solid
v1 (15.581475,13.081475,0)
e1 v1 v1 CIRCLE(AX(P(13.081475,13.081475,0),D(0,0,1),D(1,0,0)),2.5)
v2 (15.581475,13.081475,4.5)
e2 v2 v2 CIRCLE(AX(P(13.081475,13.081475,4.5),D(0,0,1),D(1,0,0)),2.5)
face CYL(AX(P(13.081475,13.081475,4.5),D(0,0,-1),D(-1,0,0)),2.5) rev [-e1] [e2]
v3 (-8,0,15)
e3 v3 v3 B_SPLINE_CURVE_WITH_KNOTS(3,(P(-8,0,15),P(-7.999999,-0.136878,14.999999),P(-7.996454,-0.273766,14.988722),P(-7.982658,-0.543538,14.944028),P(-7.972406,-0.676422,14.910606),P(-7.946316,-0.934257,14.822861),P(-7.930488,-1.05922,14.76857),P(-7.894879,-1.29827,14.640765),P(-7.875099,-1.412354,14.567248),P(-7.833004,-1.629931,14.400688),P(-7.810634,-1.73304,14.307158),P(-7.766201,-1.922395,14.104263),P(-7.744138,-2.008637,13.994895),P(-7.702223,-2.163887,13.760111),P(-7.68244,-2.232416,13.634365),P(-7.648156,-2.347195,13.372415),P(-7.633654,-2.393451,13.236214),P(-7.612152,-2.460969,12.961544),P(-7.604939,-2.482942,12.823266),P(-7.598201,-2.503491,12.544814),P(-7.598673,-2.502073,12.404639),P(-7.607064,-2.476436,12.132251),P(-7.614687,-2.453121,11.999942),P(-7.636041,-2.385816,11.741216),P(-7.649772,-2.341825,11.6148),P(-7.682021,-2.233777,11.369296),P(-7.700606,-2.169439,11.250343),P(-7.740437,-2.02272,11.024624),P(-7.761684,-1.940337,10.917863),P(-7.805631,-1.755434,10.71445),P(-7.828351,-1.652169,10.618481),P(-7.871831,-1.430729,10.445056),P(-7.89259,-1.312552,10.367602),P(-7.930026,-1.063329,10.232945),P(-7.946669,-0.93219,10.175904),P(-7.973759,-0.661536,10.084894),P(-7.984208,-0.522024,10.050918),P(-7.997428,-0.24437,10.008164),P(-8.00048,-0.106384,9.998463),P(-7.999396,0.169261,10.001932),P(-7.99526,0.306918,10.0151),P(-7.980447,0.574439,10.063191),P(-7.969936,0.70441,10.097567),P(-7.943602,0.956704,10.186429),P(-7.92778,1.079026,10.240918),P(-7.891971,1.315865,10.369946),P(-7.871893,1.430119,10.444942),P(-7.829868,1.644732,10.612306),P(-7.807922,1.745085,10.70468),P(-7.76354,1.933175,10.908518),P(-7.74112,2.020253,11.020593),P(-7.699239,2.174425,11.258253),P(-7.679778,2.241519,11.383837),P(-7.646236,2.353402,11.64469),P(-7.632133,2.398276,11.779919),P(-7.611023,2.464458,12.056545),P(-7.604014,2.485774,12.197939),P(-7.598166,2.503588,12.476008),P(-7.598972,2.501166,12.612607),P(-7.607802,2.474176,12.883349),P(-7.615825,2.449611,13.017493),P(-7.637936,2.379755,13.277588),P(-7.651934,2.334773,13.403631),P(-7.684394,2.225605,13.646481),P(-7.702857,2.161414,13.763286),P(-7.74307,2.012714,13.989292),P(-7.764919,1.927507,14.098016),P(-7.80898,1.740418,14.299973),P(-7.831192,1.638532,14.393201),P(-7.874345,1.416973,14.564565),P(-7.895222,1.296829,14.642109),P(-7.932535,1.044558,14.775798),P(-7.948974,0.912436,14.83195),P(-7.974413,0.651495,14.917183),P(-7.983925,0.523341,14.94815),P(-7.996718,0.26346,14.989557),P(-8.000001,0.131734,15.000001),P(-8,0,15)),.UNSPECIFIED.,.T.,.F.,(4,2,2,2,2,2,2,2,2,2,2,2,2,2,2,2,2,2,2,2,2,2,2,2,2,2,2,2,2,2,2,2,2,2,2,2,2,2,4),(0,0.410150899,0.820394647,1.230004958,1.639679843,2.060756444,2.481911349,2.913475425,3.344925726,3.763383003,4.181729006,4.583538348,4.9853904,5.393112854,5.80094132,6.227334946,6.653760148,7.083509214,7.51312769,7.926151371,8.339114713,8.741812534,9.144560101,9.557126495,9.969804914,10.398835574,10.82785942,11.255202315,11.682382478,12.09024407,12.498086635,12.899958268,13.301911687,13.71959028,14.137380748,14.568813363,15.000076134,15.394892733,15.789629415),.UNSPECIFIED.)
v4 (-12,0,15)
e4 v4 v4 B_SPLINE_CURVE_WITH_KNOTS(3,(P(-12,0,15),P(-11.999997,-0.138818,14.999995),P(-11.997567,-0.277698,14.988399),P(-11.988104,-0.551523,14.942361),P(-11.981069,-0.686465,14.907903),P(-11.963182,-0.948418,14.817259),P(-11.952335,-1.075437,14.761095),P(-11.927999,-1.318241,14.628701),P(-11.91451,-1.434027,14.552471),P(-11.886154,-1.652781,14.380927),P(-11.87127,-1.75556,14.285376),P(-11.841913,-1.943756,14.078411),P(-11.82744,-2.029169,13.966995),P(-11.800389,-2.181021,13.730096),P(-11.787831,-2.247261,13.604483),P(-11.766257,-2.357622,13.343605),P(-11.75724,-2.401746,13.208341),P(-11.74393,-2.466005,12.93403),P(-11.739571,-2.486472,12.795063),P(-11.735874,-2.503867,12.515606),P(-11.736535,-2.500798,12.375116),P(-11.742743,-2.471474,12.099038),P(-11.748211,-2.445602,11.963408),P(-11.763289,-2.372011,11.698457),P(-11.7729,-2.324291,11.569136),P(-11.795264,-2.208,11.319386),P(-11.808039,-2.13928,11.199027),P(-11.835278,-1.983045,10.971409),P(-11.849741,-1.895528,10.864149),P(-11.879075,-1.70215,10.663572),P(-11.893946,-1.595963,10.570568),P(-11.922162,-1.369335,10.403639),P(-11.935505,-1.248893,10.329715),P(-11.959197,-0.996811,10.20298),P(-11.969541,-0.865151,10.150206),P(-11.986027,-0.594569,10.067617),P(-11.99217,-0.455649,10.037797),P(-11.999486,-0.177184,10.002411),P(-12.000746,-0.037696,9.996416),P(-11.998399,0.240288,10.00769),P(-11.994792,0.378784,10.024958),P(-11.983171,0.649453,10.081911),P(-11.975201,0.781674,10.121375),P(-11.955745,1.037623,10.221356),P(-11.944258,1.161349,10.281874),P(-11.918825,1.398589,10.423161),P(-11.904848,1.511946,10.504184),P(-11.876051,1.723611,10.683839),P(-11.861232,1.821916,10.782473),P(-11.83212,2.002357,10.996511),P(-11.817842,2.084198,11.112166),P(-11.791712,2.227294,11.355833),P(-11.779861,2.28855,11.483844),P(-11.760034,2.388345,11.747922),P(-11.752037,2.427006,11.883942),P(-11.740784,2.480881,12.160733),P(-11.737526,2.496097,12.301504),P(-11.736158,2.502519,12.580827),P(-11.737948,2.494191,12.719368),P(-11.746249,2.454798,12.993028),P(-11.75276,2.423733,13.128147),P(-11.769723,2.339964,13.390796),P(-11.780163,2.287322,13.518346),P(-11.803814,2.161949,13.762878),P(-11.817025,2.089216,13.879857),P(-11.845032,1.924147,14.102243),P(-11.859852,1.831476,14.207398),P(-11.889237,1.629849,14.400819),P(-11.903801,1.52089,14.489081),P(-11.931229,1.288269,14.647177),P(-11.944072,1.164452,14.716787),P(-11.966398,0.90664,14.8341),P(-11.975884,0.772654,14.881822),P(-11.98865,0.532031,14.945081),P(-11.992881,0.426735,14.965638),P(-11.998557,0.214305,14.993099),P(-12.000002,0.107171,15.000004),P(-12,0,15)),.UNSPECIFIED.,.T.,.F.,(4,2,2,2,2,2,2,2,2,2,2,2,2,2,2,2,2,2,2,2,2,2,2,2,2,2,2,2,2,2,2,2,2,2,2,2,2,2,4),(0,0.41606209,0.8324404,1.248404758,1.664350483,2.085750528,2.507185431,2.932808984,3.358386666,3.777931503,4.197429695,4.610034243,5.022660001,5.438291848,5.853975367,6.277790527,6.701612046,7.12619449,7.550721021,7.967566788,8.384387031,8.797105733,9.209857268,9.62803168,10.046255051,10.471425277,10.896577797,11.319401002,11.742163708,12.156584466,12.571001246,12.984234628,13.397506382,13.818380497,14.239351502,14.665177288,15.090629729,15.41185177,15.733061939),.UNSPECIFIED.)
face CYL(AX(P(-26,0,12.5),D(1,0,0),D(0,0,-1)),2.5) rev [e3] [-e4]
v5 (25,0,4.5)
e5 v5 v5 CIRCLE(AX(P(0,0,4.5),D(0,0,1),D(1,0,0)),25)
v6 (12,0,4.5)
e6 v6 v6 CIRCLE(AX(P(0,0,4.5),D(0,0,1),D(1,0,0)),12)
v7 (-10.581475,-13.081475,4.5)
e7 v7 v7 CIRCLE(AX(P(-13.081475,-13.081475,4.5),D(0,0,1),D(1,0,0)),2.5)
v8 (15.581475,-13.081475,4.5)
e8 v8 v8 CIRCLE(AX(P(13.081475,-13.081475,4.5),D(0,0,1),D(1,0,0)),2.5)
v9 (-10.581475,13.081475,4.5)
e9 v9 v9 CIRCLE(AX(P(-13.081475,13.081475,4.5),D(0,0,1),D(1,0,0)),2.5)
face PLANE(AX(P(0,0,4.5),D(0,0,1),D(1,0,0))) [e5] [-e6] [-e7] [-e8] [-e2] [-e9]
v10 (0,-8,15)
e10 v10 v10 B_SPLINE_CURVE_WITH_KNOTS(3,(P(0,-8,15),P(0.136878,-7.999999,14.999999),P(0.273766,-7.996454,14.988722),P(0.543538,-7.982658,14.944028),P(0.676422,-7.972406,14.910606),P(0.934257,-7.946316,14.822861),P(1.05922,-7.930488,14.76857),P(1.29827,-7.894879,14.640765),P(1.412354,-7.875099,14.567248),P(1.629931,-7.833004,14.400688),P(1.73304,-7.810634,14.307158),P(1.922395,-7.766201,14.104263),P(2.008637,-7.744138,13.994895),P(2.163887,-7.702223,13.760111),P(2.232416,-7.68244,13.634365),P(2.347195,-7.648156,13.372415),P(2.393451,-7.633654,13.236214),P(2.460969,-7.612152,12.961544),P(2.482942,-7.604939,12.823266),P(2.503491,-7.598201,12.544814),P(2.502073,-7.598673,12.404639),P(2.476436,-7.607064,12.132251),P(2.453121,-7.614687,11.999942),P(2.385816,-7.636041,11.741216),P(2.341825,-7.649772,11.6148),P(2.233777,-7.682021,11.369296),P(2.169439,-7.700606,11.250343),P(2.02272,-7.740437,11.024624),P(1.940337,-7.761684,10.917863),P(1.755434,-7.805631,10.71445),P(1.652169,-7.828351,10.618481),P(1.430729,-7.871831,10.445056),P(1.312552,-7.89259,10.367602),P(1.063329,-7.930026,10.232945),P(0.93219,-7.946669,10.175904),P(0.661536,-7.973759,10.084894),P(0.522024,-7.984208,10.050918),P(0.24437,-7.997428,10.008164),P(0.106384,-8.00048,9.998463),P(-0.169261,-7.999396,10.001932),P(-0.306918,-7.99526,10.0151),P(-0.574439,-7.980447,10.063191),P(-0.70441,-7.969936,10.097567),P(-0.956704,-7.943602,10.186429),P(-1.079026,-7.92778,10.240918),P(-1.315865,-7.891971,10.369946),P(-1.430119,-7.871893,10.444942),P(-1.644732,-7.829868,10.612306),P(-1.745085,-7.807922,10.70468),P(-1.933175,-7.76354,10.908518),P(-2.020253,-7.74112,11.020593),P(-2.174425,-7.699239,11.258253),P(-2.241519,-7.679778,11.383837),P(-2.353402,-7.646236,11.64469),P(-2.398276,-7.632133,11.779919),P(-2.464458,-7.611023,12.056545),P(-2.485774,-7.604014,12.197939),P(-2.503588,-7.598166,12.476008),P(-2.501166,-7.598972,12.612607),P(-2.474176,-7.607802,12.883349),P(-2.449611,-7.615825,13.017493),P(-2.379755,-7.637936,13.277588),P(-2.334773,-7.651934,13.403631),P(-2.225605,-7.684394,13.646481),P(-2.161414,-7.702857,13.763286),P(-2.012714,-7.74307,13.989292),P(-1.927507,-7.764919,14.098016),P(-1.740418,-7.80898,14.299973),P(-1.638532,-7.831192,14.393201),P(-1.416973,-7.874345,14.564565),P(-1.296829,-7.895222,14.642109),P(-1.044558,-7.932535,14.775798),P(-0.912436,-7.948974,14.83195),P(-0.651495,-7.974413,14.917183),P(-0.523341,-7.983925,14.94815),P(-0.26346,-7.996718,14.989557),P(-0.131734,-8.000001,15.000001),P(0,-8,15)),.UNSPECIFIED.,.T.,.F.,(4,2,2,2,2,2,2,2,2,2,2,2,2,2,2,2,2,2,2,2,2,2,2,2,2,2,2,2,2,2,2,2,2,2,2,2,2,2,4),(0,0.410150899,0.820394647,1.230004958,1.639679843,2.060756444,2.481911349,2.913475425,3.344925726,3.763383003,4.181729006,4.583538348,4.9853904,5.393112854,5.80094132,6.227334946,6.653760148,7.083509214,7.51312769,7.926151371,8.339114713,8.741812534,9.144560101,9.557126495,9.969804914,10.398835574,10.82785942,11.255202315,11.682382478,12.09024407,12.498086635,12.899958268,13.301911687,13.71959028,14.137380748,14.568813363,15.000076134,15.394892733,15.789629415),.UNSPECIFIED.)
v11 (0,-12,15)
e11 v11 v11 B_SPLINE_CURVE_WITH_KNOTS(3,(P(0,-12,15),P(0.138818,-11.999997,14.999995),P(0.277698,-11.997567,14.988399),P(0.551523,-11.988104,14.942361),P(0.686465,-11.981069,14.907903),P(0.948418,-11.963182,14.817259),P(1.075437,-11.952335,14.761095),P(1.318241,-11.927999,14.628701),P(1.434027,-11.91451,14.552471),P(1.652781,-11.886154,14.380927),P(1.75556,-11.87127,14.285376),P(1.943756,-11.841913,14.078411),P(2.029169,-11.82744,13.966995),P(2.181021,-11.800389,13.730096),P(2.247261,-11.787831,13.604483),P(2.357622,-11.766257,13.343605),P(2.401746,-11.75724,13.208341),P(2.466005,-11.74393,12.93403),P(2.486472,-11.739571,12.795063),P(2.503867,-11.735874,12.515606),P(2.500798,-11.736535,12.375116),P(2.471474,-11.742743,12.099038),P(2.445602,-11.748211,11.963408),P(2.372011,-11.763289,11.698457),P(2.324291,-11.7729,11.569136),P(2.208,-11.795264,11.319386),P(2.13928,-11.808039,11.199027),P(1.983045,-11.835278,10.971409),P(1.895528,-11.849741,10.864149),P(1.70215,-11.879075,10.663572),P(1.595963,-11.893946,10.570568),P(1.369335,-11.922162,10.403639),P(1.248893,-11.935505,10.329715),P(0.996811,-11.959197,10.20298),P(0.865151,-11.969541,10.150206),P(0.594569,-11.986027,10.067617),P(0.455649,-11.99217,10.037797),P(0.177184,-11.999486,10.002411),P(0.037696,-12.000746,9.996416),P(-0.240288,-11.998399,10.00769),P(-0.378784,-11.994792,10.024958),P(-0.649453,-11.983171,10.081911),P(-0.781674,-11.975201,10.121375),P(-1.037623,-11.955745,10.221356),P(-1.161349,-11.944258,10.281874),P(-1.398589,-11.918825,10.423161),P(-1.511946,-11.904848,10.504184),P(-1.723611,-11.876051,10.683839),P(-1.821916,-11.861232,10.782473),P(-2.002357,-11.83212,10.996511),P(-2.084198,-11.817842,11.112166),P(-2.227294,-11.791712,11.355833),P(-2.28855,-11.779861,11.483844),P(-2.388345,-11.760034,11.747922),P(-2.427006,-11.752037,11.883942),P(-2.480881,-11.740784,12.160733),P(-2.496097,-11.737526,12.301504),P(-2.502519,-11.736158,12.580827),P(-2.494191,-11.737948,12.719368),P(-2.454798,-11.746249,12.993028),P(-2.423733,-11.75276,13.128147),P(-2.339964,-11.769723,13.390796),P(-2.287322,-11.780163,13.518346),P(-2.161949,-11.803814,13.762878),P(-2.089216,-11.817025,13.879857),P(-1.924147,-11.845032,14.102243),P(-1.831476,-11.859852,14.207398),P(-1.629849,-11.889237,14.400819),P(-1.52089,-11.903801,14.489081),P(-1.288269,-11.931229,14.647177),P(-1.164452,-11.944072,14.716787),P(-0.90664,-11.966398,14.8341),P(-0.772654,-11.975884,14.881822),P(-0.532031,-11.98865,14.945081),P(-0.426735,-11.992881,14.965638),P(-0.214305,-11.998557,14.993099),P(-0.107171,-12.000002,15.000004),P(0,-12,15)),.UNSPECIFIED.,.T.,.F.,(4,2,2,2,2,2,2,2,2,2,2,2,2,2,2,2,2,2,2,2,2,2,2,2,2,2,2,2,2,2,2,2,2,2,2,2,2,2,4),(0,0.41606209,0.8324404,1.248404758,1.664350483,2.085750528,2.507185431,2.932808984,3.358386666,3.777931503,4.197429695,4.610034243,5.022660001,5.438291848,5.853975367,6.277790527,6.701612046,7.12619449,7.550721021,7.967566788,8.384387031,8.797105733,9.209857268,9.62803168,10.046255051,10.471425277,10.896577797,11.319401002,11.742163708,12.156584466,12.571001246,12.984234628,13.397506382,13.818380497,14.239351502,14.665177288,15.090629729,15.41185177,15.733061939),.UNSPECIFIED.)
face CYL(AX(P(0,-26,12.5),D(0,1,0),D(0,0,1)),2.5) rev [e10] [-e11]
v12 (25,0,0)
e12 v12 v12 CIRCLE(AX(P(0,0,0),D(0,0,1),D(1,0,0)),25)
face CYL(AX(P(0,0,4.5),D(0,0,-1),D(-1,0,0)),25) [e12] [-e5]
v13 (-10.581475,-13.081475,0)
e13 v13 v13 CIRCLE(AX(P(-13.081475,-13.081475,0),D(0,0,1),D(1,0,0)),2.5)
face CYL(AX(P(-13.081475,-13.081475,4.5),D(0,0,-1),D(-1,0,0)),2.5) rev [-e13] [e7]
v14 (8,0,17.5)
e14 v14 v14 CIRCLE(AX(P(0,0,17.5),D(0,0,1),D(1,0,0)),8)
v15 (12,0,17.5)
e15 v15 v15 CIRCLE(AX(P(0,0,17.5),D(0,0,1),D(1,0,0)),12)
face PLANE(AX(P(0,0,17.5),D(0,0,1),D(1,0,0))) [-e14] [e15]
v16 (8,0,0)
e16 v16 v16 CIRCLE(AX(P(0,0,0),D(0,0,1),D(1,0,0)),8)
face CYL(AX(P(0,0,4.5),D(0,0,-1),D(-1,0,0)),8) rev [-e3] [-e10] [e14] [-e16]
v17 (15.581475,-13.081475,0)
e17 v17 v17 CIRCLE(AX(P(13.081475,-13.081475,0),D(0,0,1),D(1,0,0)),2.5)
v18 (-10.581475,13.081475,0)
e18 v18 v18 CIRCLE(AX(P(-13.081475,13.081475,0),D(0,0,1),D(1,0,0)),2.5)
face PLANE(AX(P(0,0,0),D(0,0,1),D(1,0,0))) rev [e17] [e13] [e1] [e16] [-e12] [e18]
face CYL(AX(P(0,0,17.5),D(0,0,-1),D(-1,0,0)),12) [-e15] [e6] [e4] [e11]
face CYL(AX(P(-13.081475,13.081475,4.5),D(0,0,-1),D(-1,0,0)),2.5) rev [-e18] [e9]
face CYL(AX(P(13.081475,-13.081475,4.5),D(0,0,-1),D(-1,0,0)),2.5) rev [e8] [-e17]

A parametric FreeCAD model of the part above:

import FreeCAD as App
import Part
import Sketcher

V = App.Vector

doc = App.newDocument("Part")
body = doc.addObject("PartDesign::Body", "Body")

# Sketch on XY plane
sketch1 = doc.addObject("Sketcher::SketchObject", "Sketch")
body.addObject(sketch1)
sketch1.AttachmentSupport = (doc.XY_Plane, [""])
sketch1.MapMode = "FlatFace"
sketch1.addGeometry(Part.Circle(V(0, 0, 0), V(0, 0, 1), 25), False)
sketch1.addGeometry(Part.Circle(V(-13.081475, -13.081475, 0), V(0, 0, 1), 2.5), False)
sketch1.addGeometry(Part.Circle(V(13.081475, -13.081475, 0), V(0, 0, 1), 2.5), False)
sketch1.addGeometry(Part.Circle(V(-13.081475, 13.081475, 0), V(0, 0, 1), 2.5), False)
sketch1.addGeometry(Part.Circle(V(0, 0, 0), V(0, 0, 1), 8), False)
sketch1.addGeometry(Part.Circle(V(13.081475, 13.081475, 0), V(0, 0, 1), 2.5), False)
sketch1.addConstraint(Sketcher.Constraint("Coincident", 0, 3, -1, 1))
sketch1.addConstraint(Sketcher.Constraint("Coincident", 4, 3, -1, 1))
sketch1.addConstraint(Sketcher.Constraint("Equal", 1, 2))
sketch1.addConstraint(Sketcher.Constraint("Equal", 2, 3))
sketch1.addConstraint(Sketcher.Constraint("Equal", 3, 5))
sketch1.addConstraint(Sketcher.Constraint("Symmetric", 2, 3, 3, 3, -1, 1))
sketch1.addConstraint(Sketcher.Constraint("Symmetric", 1, 3, 5, 3, -1, 1))
sketch1.addConstraint(Sketcher.Constraint("Symmetric", 1, 3, 2, 3, -2))
sketch1.addConstraint(Sketcher.Constraint("Diameter", 0, 50.0))
sketch1.addConstraint(Sketcher.Constraint("Diameter", 1, 5.0))
sketch1.addConstraint(Sketcher.Constraint("Diameter", 4, 16.0))
sketch1.addConstraint(Sketcher.Constraint("DistanceX", 1, 3, 2, 3, 26.162951))
sketch1.addConstraint(Sketcher.Constraint("DistanceY", 1, 3, 3, 3, 26.162951))
pad1 = doc.addObject("PartDesign::Pad", "Pad")
body.addObject(pad1)
pad1.Profile = sketch1
pad1.Length = 4.5

# Sketch on XY plane
sketch2 = doc.addObject("Sketcher::SketchObject", "Sketch001")
body.addObject(sketch2)
sketch2.AttachmentSupport = (doc.XY_Plane, [""])
sketch2.MapMode = "FlatFace"
sketch2.AttachmentOffset = App.Placement(V(0, 0, 4.5), App.Rotation())
sketch2.addGeometry(Part.Circle(V(0, 0, 0), V(0, 0, 1), 12), False)
sketch2.addGeometry(Part.Circle(V(0, 0, 0), V(0, 0, 1), 8), False)
sketch2.addConstraint(Sketcher.Constraint("Coincident", 0, 3, -1, 1))
sketch2.addConstraint(Sketcher.Constraint("Coincident", 1, 3, -1, 1))
sketch2.addConstraint(Sketcher.Constraint("Diameter", 0, 24.0))
sketch2.addConstraint(Sketcher.Constraint("Diameter", 1, 16.0))
pad2 = doc.addObject("PartDesign::Pad", "Pad001")
body.addObject(pad2)
pad2.Profile = sketch2
pad2.Length = 13

# Sketch on XZ plane
sketch3 = doc.addObject("Sketcher::SketchObject", "Sketch002")
body.addObject(sketch3)
sketch3.AttachmentSupport = (doc.XZ_Plane, [""])
sketch3.MapMode = "FlatFace"
sketch3.addGeometry(Part.Circle(V(0, 12.5, 0), V(0, 0, 1), 2.5), False)
sketch3.addConstraint(Sketcher.Constraint("PointOnObject", 0, 3, -2))
sketch3.addConstraint(Sketcher.Constraint("Diameter", 0, 5.0))
sketch3.addConstraint(Sketcher.Constraint("DistanceY", -1, 1, 0, 3, 12.5))
pocket1 = doc.addObject("PartDesign::Pocket", "Pocket")
body.addObject(pocket1)
pocket1.Profile = sketch3
pocket1.Length = 26
pocket1.Reversed = True

# Sketch on YZ plane
sketch4 = doc.addObject("Sketcher::SketchObject", "Sketch003")
body.addObject(sketch4)
sketch4.AttachmentSupport = (doc.YZ_Plane, [""])
sketch4.MapMode = "FlatFace"
sketch4.addGeometry(Part.Circle(V(0, 12.5, 0), V(0, 0, 1), 2.5), False)
sketch4.addConstraint(Sketcher.Constraint("PointOnObject", 0, 3, -2))
sketch4.addConstraint(Sketcher.Constraint("Diameter", 0, 5.0))
sketch4.addConstraint(Sketcher.Constraint("DistanceY", -1, 1, 0, 3, 12.5))
pocket2 = doc.addObject("PartDesign::Pocket", "Pocket001")
body.addObject(pocket2)
pocket2.Profile = sketch4
pocket2.Length = 26

doc.recompute()
